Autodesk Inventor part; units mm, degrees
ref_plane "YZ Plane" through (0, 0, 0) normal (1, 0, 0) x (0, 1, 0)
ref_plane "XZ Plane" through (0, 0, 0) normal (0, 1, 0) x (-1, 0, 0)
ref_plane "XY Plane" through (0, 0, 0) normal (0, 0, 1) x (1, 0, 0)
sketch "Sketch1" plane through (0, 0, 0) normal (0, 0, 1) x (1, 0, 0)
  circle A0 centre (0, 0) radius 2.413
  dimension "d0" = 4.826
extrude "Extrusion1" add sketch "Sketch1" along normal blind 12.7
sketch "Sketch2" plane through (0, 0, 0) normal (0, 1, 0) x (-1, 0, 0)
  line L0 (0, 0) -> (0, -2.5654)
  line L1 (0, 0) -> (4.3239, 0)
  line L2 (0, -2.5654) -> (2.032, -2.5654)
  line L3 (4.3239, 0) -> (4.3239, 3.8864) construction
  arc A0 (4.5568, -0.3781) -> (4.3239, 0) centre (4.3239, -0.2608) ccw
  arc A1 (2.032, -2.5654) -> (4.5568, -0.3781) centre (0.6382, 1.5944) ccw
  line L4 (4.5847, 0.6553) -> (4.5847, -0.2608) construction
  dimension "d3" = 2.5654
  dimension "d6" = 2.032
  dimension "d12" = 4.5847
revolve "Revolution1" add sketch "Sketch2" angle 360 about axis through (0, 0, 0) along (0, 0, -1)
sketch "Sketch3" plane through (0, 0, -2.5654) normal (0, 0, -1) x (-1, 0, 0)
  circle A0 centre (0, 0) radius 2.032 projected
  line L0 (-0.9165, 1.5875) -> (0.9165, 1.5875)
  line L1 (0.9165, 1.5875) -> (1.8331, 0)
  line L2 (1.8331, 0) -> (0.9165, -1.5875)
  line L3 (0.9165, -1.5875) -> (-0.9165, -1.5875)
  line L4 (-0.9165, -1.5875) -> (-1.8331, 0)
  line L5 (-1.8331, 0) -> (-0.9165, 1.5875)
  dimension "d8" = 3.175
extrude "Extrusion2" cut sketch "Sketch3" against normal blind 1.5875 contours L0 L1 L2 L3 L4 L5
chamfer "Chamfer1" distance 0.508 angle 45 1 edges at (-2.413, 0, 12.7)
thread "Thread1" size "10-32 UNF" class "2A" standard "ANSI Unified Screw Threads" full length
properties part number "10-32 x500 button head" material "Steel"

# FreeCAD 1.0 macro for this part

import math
import FreeCAD as App
import Part
import Sketcher
from FreeCAD import Vector
Q = App.Units.Quantity


def edges_at(feature, points):
    """Names of the edges that pass closest to the given points."""
    edges = feature.Shape.Edges
    near = lambda p: min(range(len(edges)), key=lambda i: edges[i].distToShape(Part.Vertex(*p))[0])
    return sorted({f"Edge{near(p) + 1}" for p in points})

doc = App.newDocument("Part")
body = doc.addObject("PartDesign::Body", "Body")

sketch1 = body.newObject("Sketcher::SketchObject", "Sketch")
sketch1.AttachmentSupport = (doc.getObject("XY_Plane"), [""])
sketch1.MapMode = "FlatFace"
sketch1.addGeometry(Part.Circle(Vector(0, 0, 0), Vector(0, 0, 1), 2.4), False)
sketch1.addConstraint([
    Sketcher.Constraint("Coincident", 0, 3, -1, 1),
    Sketcher.Constraint("Diameter", 0, Q("0.19 in")),
])
pad1 = body.newObject("PartDesign::Pad", "Pad")
pad1.Profile = sketch1
pad1.Length = Q("0.5 in")

sketch2 = body.newObject("Sketcher::SketchObject", "Sketch001")
sketch2.AttachmentSupport = (doc.getObject("XZ_Plane"), [""])
sketch2.MapMode = "FlatFace"
sketch2.addGeometry([
    Part.LineSegment(Vector(-4.32, 0, 0), Vector(0, 0, 0)),
    Part.LineSegment(Vector(0, 0, 0), Vector(0, -2.57, 0)),
    Part.LineSegment(Vector(0, -2.57, 0), Vector(-2.03, -2.57, 0)),
    Part.ArcOfCircle(Part.Circle(Vector(-0.64, 1.59, 0), Vector(0, 0, 1), 4.39), math.radians(-153), math.radians(-109)),
    Part.ArcOfCircle(Part.Circle(Vector(-4.32, -0.26, 0), Vector(0, 0, 1), 0.26), math.radians(90), math.radians(207)),
], False)
sketch2.addConstraint([
    Sketcher.Constraint("Coincident", 0, 2, 1, 1),
    Sketcher.Constraint("Coincident", 1, 2, 2, 1),
    Sketcher.Constraint("Coincident", 2, 2, 3, 2),
    Sketcher.Constraint("Tangent", 3, 1, 4, 2),
    Sketcher.Constraint("Tangent", 4, 1, 0, 1),
    Sketcher.Constraint("Horizontal", 0),
    Sketcher.Constraint("Vertical", 1),
    Sketcher.Constraint("Horizontal", 2),
    Sketcher.Constraint("Coincident", 0, 2, -1, 1),
    Sketcher.Constraint("DistanceX", 2, 2, 2, 1, Q("0.08 in")),
    Sketcher.Constraint("DistanceY", 1, 2, 1, 1, Q("0.101 in")),
    Sketcher.Constraint("Radius", 3, 4.387),
    Sketcher.Constraint("Radius", 4, 0.2608),
    Sketcher.Constraint("DistanceX", 0, 1, 0, 2, 4.324),
])
revolution = body.newObject("PartDesign::Revolution", "Revolution")
revolution.Profile = sketch2
revolution.ReferenceAxis = (sketch2, ["V_Axis"])
revolution.Angle = 360

sketch3 = body.newObject("Sketcher::SketchObject", "Sketch002")
sketch3.AttachmentSupport = (doc.getObject("XY_Plane"), [""])
sketch3.MapMode = "FlatFace"
sketch3.AttachmentOffset = App.Placement(Vector(0, 0, -0.101 * 25.4), App.Rotation())
sketch3.addGeometry([
    Part.LineSegment(Vector(-0.9, 1.6, 0), Vector(0.9, 1.6, 0)),
    Part.LineSegment(Vector(0.9, 1.6, 0), Vector(1.8, 0, 0)),
    Part.LineSegment(Vector(1.8, 0, 0), Vector(0.9, -1.6, 0)),
    Part.LineSegment(Vector(0.9, -1.6, 0), Vector(-0.9, -1.6, 0)),
    Part.LineSegment(Vector(-0.9, -1.6, 0), Vector(-1.8, 0, 0)),
    Part.LineSegment(Vector(-1.8, 0, 0), Vector(-0.9, 1.6, 0)),
], False)
sketch3.addConstraint([
    Sketcher.Constraint("Coincident", 0, 2, 1, 1),
    Sketcher.Constraint("Coincident", 1, 2, 2, 1),
    Sketcher.Constraint("Coincident", 2, 2, 3, 1),
    Sketcher.Constraint("Coincident", 3, 2, 4, 1),
    Sketcher.Constraint("Coincident", 4, 2, 5, 1),
    Sketcher.Constraint("Coincident", 5, 2, 0, 1),
    Sketcher.Constraint("Horizontal", 0),
    Sketcher.Constraint("Horizontal", 3),
    Sketcher.Constraint("Symmetric", 0, 2, 3, 2, -1, 1),
    Sketcher.Constraint("Symmetric", 1, 2, 4, 2, -1, 1),
    Sketcher.Constraint("PointOnObject", 1, 2, -1),
    Sketcher.Constraint("Parallel", 2, 5),
    Sketcher.Constraint("Vertical", 0, 2, 2, 2),
    Sketcher.Constraint("DistanceY", 2, 2, 0, 2, Q("0.125 in")),
    Sketcher.Constraint("DistanceX", 0, 1, 0, 2, 1.833),
    Sketcher.Constraint("Distance", 1, 1.833),
])
pocket1 = body.newObject("PartDesign::Pocket", "Pocket")
pocket1.Profile = sketch3
pocket1.Length = Q("0.0625 in")
pocket1.Reversed = True
doc.recompute()

chamfer = body.newObject("PartDesign::Chamfer", "Chamfer")
chamfer.Base = (pocket1, edges_at(pocket1, [(-2.413, 0, 12.7)]))
chamfer.Size = Q("0.02 in")

doc.recompute()
